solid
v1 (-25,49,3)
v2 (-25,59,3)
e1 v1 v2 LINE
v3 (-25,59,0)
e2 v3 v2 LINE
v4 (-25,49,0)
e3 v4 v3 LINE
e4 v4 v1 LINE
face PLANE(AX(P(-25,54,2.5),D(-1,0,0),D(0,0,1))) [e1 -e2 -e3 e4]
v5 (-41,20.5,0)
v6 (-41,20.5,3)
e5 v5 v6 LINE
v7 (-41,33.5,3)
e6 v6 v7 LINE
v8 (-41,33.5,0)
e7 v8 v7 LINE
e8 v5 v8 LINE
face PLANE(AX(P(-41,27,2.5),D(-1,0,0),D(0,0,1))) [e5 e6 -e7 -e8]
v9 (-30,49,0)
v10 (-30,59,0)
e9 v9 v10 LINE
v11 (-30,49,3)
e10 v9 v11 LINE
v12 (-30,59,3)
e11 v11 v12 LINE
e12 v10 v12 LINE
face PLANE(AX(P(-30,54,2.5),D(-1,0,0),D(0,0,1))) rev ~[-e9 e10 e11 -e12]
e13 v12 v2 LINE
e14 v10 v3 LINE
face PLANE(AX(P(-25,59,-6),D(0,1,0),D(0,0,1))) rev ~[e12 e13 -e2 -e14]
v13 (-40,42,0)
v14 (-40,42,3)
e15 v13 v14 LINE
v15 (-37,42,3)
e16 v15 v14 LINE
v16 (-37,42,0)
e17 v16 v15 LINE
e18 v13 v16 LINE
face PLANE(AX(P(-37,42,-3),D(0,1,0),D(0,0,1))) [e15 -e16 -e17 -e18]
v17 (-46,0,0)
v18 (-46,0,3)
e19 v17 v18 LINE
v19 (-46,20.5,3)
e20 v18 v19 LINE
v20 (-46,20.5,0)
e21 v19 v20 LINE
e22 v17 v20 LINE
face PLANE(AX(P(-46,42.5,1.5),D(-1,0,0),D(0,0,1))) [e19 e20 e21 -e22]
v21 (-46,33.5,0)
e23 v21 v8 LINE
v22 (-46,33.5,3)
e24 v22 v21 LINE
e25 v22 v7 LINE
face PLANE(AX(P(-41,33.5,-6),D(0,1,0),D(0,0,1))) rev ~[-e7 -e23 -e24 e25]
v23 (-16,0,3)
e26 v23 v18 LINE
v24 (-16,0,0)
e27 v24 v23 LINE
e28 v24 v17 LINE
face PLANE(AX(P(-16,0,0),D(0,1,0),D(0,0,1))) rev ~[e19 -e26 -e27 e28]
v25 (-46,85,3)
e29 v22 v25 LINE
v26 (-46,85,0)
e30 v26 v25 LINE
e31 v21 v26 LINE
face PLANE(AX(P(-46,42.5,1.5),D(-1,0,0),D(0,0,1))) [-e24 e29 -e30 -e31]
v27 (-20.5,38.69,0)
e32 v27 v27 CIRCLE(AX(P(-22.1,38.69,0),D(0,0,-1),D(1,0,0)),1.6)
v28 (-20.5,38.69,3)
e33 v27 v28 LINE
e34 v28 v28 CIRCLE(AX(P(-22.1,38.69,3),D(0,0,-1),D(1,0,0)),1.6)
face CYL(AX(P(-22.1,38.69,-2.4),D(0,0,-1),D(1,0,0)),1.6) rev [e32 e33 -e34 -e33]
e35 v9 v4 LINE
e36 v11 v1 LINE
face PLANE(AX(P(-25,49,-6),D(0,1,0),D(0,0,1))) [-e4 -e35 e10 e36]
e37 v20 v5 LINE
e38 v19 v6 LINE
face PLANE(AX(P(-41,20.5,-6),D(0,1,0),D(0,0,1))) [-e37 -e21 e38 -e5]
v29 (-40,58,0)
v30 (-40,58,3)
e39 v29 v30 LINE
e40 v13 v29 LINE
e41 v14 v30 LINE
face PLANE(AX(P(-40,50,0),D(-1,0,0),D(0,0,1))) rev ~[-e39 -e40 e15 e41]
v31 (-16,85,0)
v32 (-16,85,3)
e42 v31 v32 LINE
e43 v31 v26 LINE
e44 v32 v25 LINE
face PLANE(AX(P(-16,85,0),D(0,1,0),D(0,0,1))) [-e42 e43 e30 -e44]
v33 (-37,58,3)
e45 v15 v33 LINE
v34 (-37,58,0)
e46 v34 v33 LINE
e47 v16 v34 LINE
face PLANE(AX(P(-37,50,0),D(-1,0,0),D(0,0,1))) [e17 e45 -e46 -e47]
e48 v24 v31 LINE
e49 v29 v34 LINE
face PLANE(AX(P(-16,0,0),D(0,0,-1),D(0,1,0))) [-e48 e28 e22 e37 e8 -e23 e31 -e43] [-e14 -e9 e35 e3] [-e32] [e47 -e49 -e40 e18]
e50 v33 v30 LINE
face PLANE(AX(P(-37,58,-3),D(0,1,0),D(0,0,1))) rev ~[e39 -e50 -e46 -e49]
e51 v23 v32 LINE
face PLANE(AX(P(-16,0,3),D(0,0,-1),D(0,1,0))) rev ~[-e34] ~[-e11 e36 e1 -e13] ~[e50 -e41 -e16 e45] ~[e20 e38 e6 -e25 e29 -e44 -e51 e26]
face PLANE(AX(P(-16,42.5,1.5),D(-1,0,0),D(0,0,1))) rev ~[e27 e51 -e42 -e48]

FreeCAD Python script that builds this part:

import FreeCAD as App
import Part
import Sketcher

V = App.Vector
Q = App.Units.Quantity


def add_polygon(sketch, points):
    """Adds a closed chain of lines whose ends are joined by coincident constraints."""
    first, n = sketch.GeometryCount, len(points)
    for a, b in zip(points, points[1:] + points[:1]):
        sketch.addGeometry(Part.LineSegment(App.Vector(*a, 0), App.Vector(*b, 0)), False)
    for i in range(n):
        sketch.addConstraint(Sketcher.Constraint("Coincident", first + i, 2, first + (i + 1) % n, 1))

doc = App.newDocument("Part")
body = doc.addObject("PartDesign::Body", "Body")

# Sketch on XY plane
sketch1 = body.newObject("Sketcher::SketchObject", "Sketch")
sketch1.AttachmentSupport = (doc.getObject("XY_Plane"), [""])
sketch1.MapMode = "FlatFace"
sketch1.addGeometry(Part.Circle(V(0, 0, 0), V(0, 0, 1), 1.6), False)
sketch1.addConstraint([
    Sketcher.Constraint("Coincident", 0, 3, -1, 1),
    Sketcher.Constraint("Diameter", 0, Q("3.2 mm")),
])
pad1 = body.newObject("PartDesign::Pad", "Pad")
pad1.Profile = sketch1
pad1.Length = 10
body2 = doc.addObject("PartDesign::Body", "Body001")
doc.recompute()

body.Placement = App.Placement(V(0, 0, 0), App.Rotation(V(0, 1, 0), 90))
boolean = body2.newObject("PartDesign::Boolean", "Boolean")
boolean.Type = "Fuse"
boolean.addObjects([body])
body3 = doc.addObject("PartDesign::Body", "Body002")
doc.recompute()

body2.Placement = App.Placement(V(-7.4, 38.69, -18.9), App.Rotation(V(0, 0, 1), 0))
boolean2 = body3.newObject("PartDesign::Boolean", "Boolean001")
boolean2.Type = "Fuse"
boolean2.addObjects([body2])
body4 = doc.addObject("PartDesign::Body", "Body003")

# Sketch on XY plane
sketch2 = body4.newObject("Sketcher::SketchObject", "Sketch001")
sketch2.AttachmentSupport = (doc.getObject("XY_Plane003"), [""])
sketch2.MapMode = "FlatFace"
sketch2.AttachmentOffset = App.Placement(V(0, 0, -16), App.Rotation())
add_polygon(sketch2, [(-11, 59), (-11, 49), (6, 49), (6, 59)])  # lines 0-3
sketch2.addConstraint([
    Sketcher.Constraint("Vertical", 0),
    Sketcher.Constraint("Horizontal", 1),
    Sketcher.Constraint("Vertical", 2),
    Sketcher.Constraint("Horizontal", 3),
    Sketcher.Constraint("DistanceX", 1, 1, 1, 2, Q("17 mm")),
    Sketcher.Constraint("DistanceY", 0, 2, 0, 1, Q("10 mm")),
    Sketcher.Constraint("DistanceX", 0, 2, -1, 1, Q("11 mm")),
    Sketcher.Constraint("DistanceY", -1, 1, 0, 2, Q("49 mm")),
])
pad2 = body4.newObject("PartDesign::Pad", "Pad001")
pad2.Profile = sketch2
pad2.Length = 5
body5 = doc.addObject("PartDesign::Body", "Body004")

# Sketch on XY plane
sketch3 = body5.newObject("Sketcher::SketchObject", "Sketch002")
sketch3.AttachmentSupport = (doc.getObject("XY_Plane004"), [""])
sketch3.MapMode = "FlatFace"
sketch3.AttachmentOffset = App.Placement(V(0, 0, -4), App.Rotation())
add_polygon(sketch3, [(-8, 58), (-8, 42), (-2, 42), (-2, 58)])  # lines 0-3
sketch3.addConstraint([
    Sketcher.Constraint("Vertical", 0),
    Sketcher.Constraint("Horizontal", 1),
    Sketcher.Constraint("Vertical", 2),
    Sketcher.Constraint("Horizontal", 3),
    Sketcher.Constraint("DistanceX", 1, 1, 1, 2, Q("6 mm")),
    Sketcher.Constraint("DistanceY", 0, 2, 0, 1, Q("16 mm")),
    Sketcher.Constraint("DistanceX", 0, 2, -1, 1, Q("8 mm")),
    Sketcher.Constraint("DistanceY", -1, 1, 0, 2, Q("42 mm")),
])
pad3 = body5.newObject("PartDesign::Pad", "Pad002")
pad3.Profile = sketch3
pad3.Length = 3
body6 = doc.addObject("PartDesign::Body", "Body005")
body6.AllowCompound = True

# Sketch on XY plane
sketch4 = body6.newObject("Sketcher::SketchObject", "Sketch003")
sketch4.AttachmentSupport = (doc.getObject("XY_Plane005"), [""])
sketch4.MapMode = "FlatFace"
add_polygon(sketch4, [(-11, 33.5), (-11, 20.5), (6, 20.5), (6, 33.5)])  # lines 0-3
sketch4.addConstraint([
    Sketcher.Constraint("Vertical", 0),
    Sketcher.Constraint("Horizontal", 1),
    Sketcher.Constraint("Vertical", 2),
    Sketcher.Constraint("Horizontal", 3),
    Sketcher.Constraint("DistanceX", 1, 1, 1, 2, Q("17 mm")),
    Sketcher.Constraint("DistanceY", 0, 2, 0, 1, Q("13 mm")),
    Sketcher.Constraint("DistanceX", 0, 2, -1, 1, Q("11 mm")),
    Sketcher.Constraint("DistanceY", -1, 1, 0, 2, Q("20.5 mm")),
])
pad4 = body6.newObject("PartDesign::Pad", "Pad003")
pad4.Profile = sketch4
pad4.Length = 10
doc.recompute()

boolean3 = body6.newObject("PartDesign::Boolean", "Boolean002")
boolean3.Type = "Fuse"
boolean3.addObjects([body4])
doc.recompute()

boolean4 = body6.newObject("PartDesign::Boolean", "Boolean003")
boolean4.Type = "Fuse"
boolean4.addObjects([body5])
body7 = doc.addObject("PartDesign::Body", "Body006")

# Sketch on XY plane
sketch5 = body7.newObject("Sketcher::SketchObject", "Sketch004")
sketch5.AttachmentSupport = (doc.getObject("XY_Plane006"), [""])
sketch5.MapMode = "FlatFace"
sketch5.AttachmentOffset = App.Placement(V(0, 0, -25), App.Rotation())
add_polygon(sketch5, [(-5, 85), (-5, 0), (-2, 0), (-2, 85)])  # lines 0-3
sketch5.addConstraint([
    Sketcher.Constraint("Vertical", 0),
    Sketcher.Constraint("Horizontal", 1),
    Sketcher.Constraint("Vertical", 2),
    Sketcher.Constraint("Horizontal", 3),
    Sketcher.Constraint("PointOnObject", 0, 2, -1),
    Sketcher.Constraint("DistanceX", 1, 1, 1, 2, Q("3 mm")),
    Sketcher.Constraint("DistanceY", 0, 2, 0, 1, Q("85 mm")),
    Sketcher.Constraint("DistanceX", 0, 2, -1, 1, Q("5 mm")),
])
pad5 = body7.newObject("PartDesign::Pad", "Pad004")
pad5.Profile = sketch5
pad5.Length = 30
doc.recompute()

boolean5 = body7.newObject("PartDesign::Boolean", "Boolean004")
boolean5.Type = "Cut"
boolean5.addObjects([body6])
doc.recompute()

boolean6 = body7.newObject("PartDesign::Boolean", "Boolean005")
boolean6.Type = "Cut"
boolean6.addObjects([body3])
body8 = doc.addObject("PartDesign::Body", "Body007")
doc.recompute()

body7.Placement = App.Placement(V(0, 0, 0), App.Rotation(V(0, 1, 0), 270))
boolean7 = body8.newObject("PartDesign::Boolean", "Boolean006")
boolean7.Type = "Fuse"
boolean7.addObjects([body7])
body9 = doc.addObject("PartDesign::Body", "Body008")
doc.recompute()

body8.Placement = App.Placement(V(-41, 0, 5), App.Rotation(V(0, 0, 1), 0))
boolean8 = body9.newObject("PartDesign::Boolean", "Boolean007")
boolean8.Type = "Fuse"
boolean8.addObjects([body8])

doc.recompute()
